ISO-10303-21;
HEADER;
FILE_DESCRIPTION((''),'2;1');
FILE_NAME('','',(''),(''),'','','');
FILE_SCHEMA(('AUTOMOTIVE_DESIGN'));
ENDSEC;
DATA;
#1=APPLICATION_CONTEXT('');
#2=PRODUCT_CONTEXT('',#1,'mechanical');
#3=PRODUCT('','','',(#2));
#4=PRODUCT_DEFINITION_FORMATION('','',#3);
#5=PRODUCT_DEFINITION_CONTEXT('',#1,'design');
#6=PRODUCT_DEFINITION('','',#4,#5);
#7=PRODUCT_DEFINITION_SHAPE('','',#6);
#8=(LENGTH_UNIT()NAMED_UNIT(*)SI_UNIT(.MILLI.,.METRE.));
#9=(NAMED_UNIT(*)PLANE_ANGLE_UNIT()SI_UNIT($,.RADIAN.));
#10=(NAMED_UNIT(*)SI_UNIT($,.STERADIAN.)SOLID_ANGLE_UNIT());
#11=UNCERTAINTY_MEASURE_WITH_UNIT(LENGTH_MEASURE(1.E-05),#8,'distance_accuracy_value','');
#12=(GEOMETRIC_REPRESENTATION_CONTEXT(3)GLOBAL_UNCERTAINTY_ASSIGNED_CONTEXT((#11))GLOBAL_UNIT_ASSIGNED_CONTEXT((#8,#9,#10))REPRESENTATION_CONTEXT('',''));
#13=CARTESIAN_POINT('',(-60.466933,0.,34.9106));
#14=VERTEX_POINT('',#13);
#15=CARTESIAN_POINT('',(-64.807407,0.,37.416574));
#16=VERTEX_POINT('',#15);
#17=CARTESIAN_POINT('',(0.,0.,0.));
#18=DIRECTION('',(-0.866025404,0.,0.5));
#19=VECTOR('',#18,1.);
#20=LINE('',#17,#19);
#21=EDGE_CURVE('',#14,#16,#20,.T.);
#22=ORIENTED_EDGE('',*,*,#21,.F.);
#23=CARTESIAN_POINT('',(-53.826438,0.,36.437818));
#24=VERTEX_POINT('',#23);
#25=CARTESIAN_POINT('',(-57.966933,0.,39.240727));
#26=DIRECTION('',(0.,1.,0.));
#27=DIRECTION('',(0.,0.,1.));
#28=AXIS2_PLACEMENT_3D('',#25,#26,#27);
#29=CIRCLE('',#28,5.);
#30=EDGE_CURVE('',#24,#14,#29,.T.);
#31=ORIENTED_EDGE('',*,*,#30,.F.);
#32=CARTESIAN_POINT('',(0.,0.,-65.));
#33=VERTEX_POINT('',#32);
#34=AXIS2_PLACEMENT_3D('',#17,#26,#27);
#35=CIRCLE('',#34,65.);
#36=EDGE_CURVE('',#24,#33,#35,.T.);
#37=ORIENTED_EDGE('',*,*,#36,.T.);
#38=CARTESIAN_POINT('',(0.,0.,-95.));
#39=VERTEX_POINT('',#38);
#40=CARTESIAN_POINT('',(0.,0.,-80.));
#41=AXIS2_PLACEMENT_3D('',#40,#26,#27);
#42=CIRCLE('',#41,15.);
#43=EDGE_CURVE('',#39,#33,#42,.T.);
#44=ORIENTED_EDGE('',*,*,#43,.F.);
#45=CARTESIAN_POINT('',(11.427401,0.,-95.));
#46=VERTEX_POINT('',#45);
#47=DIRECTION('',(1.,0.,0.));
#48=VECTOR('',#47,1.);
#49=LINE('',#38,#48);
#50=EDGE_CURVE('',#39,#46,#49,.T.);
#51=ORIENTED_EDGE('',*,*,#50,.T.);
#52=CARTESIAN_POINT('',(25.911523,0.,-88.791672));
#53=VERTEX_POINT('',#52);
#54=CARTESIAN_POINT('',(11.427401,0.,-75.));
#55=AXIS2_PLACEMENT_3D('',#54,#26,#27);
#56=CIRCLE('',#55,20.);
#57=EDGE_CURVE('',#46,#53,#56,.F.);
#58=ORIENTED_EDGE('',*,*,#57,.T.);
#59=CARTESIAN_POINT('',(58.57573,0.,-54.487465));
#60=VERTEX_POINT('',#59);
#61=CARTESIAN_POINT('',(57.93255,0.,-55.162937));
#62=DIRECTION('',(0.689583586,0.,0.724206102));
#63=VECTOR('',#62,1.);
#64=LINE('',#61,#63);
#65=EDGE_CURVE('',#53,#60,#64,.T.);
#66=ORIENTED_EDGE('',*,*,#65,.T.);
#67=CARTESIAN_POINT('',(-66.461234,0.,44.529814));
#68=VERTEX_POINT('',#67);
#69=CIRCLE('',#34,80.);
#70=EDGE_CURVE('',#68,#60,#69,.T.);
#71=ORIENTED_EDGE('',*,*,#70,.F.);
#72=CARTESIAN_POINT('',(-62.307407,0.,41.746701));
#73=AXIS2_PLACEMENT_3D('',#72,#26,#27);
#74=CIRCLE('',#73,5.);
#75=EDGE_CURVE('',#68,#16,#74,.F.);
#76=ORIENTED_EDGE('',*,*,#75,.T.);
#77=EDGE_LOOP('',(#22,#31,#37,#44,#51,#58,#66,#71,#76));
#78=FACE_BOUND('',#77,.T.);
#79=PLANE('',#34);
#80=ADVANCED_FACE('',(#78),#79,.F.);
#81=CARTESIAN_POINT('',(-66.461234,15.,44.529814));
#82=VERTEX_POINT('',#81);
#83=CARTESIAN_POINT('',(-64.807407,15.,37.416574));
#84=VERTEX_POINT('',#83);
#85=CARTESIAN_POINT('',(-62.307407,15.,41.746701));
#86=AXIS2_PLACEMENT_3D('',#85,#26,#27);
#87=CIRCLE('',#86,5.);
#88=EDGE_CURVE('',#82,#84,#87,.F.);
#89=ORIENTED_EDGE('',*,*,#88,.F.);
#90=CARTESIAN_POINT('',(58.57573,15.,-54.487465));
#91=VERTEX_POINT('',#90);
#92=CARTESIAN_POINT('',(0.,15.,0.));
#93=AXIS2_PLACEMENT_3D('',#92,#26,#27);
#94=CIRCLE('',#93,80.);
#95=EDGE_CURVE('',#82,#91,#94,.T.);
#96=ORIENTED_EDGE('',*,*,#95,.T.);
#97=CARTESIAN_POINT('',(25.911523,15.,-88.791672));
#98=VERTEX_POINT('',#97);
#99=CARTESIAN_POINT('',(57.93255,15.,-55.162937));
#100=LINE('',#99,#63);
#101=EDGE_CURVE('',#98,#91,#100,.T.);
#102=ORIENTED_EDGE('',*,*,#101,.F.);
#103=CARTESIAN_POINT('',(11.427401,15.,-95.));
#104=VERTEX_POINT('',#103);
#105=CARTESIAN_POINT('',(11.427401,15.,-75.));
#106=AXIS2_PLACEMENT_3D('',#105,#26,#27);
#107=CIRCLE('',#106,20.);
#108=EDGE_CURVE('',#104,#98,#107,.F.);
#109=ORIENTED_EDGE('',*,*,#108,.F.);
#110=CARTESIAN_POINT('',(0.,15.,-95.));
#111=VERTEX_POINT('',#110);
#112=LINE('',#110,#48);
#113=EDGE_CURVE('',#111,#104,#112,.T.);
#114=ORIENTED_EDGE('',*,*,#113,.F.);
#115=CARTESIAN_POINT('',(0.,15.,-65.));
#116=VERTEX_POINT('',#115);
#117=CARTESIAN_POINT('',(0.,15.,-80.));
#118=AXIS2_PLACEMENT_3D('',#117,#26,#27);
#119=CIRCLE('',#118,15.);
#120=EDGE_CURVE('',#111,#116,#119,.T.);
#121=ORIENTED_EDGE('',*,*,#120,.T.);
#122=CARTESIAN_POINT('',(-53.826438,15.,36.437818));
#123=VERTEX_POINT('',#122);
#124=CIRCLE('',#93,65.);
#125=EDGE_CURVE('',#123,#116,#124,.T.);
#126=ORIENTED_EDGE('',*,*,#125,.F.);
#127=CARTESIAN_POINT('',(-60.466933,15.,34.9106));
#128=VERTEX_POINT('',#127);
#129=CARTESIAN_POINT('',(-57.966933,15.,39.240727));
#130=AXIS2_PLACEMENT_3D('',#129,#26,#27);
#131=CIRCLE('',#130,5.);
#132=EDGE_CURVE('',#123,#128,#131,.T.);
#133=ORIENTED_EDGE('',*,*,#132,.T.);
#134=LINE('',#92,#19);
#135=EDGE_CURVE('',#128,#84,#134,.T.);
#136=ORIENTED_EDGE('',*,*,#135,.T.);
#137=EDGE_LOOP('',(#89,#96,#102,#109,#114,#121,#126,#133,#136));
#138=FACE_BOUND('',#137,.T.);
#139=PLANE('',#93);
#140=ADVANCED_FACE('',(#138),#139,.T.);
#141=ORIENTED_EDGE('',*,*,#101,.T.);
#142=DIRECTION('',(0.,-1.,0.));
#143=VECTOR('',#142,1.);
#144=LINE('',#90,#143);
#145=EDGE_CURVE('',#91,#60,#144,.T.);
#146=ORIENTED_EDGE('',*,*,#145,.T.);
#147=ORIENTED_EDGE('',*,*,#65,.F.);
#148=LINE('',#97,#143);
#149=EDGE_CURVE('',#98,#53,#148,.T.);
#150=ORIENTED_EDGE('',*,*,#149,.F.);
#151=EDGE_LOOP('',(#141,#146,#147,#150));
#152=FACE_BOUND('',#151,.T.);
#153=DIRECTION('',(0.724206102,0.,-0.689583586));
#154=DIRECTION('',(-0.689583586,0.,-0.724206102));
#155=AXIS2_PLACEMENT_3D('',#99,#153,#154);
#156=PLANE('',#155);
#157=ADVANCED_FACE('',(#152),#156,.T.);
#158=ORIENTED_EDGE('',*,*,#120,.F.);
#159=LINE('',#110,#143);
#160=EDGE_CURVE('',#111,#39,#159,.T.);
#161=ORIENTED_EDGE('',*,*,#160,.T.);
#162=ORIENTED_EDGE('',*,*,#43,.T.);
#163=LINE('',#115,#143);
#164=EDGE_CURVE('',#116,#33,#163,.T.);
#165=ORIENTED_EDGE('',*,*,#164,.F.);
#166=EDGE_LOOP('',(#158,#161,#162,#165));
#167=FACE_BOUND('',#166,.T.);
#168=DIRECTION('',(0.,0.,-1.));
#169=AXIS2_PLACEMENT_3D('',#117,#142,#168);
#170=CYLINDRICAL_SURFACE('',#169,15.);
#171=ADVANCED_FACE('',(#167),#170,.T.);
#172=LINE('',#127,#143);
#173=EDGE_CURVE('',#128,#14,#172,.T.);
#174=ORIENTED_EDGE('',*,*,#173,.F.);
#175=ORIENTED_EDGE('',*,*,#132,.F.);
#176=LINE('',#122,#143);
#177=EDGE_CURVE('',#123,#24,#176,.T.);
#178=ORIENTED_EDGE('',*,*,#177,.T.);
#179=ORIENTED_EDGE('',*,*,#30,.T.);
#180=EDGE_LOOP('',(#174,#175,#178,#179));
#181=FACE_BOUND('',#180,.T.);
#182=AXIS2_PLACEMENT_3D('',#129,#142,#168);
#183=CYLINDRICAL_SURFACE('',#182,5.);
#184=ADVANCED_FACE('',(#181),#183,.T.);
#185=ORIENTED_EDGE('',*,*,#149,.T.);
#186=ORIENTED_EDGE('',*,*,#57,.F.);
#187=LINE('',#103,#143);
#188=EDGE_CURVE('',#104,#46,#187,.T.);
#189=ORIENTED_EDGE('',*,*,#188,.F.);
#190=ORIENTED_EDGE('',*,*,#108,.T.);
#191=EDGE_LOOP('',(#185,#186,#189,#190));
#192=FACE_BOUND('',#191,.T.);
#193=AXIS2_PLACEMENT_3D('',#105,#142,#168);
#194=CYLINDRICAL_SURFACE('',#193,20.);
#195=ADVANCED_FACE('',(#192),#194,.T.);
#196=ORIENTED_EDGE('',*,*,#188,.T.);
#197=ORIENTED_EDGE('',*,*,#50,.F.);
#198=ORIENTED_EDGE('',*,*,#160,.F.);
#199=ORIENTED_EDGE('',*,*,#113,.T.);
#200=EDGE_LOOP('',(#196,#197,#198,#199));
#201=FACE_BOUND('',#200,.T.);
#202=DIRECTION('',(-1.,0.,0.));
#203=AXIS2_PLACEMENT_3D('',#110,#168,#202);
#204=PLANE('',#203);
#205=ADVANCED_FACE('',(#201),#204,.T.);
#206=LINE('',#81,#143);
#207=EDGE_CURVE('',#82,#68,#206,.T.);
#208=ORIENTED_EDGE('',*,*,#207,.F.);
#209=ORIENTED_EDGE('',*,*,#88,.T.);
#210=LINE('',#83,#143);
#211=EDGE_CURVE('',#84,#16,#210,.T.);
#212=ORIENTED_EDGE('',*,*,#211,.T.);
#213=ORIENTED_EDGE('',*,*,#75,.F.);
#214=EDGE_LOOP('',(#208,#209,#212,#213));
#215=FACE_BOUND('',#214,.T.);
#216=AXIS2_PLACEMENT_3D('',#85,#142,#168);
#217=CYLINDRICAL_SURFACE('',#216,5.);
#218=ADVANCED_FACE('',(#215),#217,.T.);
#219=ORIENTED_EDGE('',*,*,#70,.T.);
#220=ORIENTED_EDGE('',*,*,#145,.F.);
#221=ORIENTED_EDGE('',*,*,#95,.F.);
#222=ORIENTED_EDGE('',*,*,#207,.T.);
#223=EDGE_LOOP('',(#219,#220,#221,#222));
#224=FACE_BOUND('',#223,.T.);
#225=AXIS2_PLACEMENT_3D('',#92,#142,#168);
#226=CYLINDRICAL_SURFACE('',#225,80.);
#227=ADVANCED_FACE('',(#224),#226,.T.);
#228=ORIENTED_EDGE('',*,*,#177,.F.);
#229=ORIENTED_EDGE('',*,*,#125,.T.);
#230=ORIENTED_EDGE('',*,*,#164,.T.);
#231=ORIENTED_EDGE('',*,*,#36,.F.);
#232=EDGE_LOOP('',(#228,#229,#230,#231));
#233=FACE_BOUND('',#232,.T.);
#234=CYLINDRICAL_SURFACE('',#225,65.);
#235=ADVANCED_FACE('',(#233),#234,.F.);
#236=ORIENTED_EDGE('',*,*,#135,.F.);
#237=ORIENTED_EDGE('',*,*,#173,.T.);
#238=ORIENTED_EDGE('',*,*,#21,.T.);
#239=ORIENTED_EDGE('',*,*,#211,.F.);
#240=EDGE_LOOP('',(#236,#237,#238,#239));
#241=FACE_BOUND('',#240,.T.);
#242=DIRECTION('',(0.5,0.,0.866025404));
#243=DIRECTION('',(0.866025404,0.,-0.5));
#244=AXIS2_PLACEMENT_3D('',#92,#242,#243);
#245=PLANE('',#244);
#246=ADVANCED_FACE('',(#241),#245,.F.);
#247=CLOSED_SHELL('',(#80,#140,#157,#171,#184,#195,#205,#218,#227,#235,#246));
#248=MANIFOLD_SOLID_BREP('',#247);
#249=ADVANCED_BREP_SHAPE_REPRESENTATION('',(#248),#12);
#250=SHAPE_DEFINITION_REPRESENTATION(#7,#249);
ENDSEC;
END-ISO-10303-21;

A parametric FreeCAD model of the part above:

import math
import FreeCAD as App
import Part
import Sketcher
Q = App.Units.Quantity

doc = App.newDocument("Part")
body = doc.addObject("PartDesign::Body", "Body")

sketch1 = body.newObject("Sketcher::SketchObject", "Sketch")
sketch1.AttachmentSupport = (doc.getObject("XZ_Plane"), [""])
sketch1.MapMode = "FlatFace"
sketch1.addGeometry([
    Part.ArcOfCircle(Part.Circle(App.Vector(-58, 39.2, 0), App.Vector(0, 0, 1), 5), math.radians(-120), math.radians(-34)),
    Part.LineSegment(App.Vector(-60.5, 34.9, 0), App.Vector(-64.8, 37.4, 0)),
    Part.ArcOfCircle(Part.Circle(App.Vector(-62.3, 41.7, 0), App.Vector(0, 0, 1), 5), math.radians(146), math.radians(240)),
    Part.ArcOfCircle(Part.Circle(App.Vector(0, 0, 0), App.Vector(0, 0, 1), 80), math.radians(-43), math.radians(146)),
    Part.LineSegment(App.Vector(58.6, -54.5, 0), App.Vector(57.3, -55.8, 0)),
    Part.LineSegment(App.Vector(57.3, -55.8, 0), App.Vector(25.9, -88.8, 0)),
    Part.ArcOfCircle(Part.Circle(App.Vector(11.4, -75, 0), App.Vector(0, 0, 1), 20), math.radians(-90), math.radians(-44)),
    Part.LineSegment(App.Vector(11.4, -95, 0), App.Vector(0, -95, 0)),
    Part.ArcOfCircle(Part.Circle(App.Vector(0, -80, 0), App.Vector(0, 0, 1), 15), math.radians(90), math.radians(270)),
    Part.ArcOfCircle(Part.Circle(App.Vector(0, 0, 0), App.Vector(0, 0, 1), 65), math.radians(-90), math.radians(146)),
], False)
sketch1.addConstraint([
    Sketcher.Constraint("Tangent", 0, 1, 1, 1),
    Sketcher.Constraint("Tangent", 1, 2, 2, 2),
    Sketcher.Constraint("Tangent", 2, 1, 3, 2),
    Sketcher.Constraint("Coincident", 3, 1, 4, 1),
    Sketcher.Constraint("Coincident", 4, 2, 5, 1),
    Sketcher.Constraint("Tangent", 5, 2, 6, 2),
    Sketcher.Constraint("Tangent", 6, 1, 7, 1),
    Sketcher.Constraint("Tangent", 7, 2, 8, 2),
    Sketcher.Constraint("Tangent", 8, 1, 9, 1),
    Sketcher.Constraint("Tangent", 9, 2, 0, 2),
    Sketcher.Constraint("Horizontal", 7),
    Sketcher.Constraint("Coincident", 3, 3, -1, 1),
    Sketcher.Constraint("Coincident", 9, 3, -1, 1),
    Sketcher.Constraint("Equal", 0, 2),
    Sketcher.Constraint("PointOnObject", 8, 3, -2),
    Sketcher.Constraint("Parallel", 4, 5),
    Sketcher.Constraint("Radius", 0, 5.0),
    Sketcher.Constraint("Radius", 3, 80.0),
    Sketcher.Constraint("Radius", 6, 20.0),
    Sketcher.Constraint("Radius", 8, 15.0),
    Sketcher.Constraint("Radius", 9, 65.0),
    Sketcher.Constraint("Angle", 1, Q("150 deg")),
    Sketcher.Constraint("DistanceX", 7, 2, 7, 1, 11.427401),
    Sketcher.Constraint("DistanceY", -1, 1, 2, 3, 41.746701),
    Sketcher.Constraint("DistanceX", -1, 1, 3, 1, 58.57573),
    Sketcher.Constraint("DistanceX", -1, 1, 4, 2, 57.289371),
])
pad1 = body.newObject("PartDesign::Pad", "Pad")
pad1.Profile = sketch1
pad1.Length = 15
pad1.Reversed = True

doc.recompute()
